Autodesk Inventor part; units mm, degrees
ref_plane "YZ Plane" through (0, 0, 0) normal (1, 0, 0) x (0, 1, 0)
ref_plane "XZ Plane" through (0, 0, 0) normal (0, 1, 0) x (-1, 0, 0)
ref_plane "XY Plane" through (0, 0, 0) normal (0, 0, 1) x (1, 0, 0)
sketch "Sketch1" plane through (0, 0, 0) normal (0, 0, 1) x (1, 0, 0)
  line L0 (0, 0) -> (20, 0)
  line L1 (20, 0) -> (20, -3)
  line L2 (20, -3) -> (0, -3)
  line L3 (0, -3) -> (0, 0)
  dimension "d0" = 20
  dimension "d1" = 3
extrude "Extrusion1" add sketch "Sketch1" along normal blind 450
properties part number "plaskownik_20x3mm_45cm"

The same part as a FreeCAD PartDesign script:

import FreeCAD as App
import Part
import Sketcher
from FreeCAD import Vector

doc = App.newDocument("Part")
body = doc.addObject("PartDesign::Body", "Body")

sketch1 = body.newObject("Sketcher::SketchObject", "Sketch")
sketch1.AttachmentSupport = (doc.getObject("XY_Plane"), [""])
sketch1.MapMode = "FlatFace"
sketch1.addGeometry([
    Part.LineSegment(Vector(20, 0, 0), Vector(0, 0, 0)),
    Part.LineSegment(Vector(0, 0, 0), Vector(0, -3, 0)),
    Part.LineSegment(Vector(0, -3, 0), Vector(20, -3, 0)),
    Part.LineSegment(Vector(20, -3, 0), Vector(20, 0, 0)),
], False)
sketch1.addConstraint([
    Sketcher.Constraint("Coincident", 0, 2, 1, 1),
    Sketcher.Constraint("Coincident", 1, 2, 2, 1),
    Sketcher.Constraint("Coincident", 2, 2, 3, 1),
    Sketcher.Constraint("Coincident", 3, 2, 0, 1),
    Sketcher.Constraint("Horizontal", 0),
    Sketcher.Constraint("Vertical", 1),
    Sketcher.Constraint("Horizontal", 2),
    Sketcher.Constraint("Vertical", 3),
    Sketcher.Constraint("Coincident", 0, 2, -1, 1),
    Sketcher.Constraint("DistanceX", 0, 2, 0, 1, 20.0),
    Sketcher.Constraint("DistanceY", 1, 2, 1, 1, 3.0),
])
pad1 = body.newObject("PartDesign::Pad", "Pad")
pad1.Profile = sketch1
pad1.Length = 450

doc.recompute()
